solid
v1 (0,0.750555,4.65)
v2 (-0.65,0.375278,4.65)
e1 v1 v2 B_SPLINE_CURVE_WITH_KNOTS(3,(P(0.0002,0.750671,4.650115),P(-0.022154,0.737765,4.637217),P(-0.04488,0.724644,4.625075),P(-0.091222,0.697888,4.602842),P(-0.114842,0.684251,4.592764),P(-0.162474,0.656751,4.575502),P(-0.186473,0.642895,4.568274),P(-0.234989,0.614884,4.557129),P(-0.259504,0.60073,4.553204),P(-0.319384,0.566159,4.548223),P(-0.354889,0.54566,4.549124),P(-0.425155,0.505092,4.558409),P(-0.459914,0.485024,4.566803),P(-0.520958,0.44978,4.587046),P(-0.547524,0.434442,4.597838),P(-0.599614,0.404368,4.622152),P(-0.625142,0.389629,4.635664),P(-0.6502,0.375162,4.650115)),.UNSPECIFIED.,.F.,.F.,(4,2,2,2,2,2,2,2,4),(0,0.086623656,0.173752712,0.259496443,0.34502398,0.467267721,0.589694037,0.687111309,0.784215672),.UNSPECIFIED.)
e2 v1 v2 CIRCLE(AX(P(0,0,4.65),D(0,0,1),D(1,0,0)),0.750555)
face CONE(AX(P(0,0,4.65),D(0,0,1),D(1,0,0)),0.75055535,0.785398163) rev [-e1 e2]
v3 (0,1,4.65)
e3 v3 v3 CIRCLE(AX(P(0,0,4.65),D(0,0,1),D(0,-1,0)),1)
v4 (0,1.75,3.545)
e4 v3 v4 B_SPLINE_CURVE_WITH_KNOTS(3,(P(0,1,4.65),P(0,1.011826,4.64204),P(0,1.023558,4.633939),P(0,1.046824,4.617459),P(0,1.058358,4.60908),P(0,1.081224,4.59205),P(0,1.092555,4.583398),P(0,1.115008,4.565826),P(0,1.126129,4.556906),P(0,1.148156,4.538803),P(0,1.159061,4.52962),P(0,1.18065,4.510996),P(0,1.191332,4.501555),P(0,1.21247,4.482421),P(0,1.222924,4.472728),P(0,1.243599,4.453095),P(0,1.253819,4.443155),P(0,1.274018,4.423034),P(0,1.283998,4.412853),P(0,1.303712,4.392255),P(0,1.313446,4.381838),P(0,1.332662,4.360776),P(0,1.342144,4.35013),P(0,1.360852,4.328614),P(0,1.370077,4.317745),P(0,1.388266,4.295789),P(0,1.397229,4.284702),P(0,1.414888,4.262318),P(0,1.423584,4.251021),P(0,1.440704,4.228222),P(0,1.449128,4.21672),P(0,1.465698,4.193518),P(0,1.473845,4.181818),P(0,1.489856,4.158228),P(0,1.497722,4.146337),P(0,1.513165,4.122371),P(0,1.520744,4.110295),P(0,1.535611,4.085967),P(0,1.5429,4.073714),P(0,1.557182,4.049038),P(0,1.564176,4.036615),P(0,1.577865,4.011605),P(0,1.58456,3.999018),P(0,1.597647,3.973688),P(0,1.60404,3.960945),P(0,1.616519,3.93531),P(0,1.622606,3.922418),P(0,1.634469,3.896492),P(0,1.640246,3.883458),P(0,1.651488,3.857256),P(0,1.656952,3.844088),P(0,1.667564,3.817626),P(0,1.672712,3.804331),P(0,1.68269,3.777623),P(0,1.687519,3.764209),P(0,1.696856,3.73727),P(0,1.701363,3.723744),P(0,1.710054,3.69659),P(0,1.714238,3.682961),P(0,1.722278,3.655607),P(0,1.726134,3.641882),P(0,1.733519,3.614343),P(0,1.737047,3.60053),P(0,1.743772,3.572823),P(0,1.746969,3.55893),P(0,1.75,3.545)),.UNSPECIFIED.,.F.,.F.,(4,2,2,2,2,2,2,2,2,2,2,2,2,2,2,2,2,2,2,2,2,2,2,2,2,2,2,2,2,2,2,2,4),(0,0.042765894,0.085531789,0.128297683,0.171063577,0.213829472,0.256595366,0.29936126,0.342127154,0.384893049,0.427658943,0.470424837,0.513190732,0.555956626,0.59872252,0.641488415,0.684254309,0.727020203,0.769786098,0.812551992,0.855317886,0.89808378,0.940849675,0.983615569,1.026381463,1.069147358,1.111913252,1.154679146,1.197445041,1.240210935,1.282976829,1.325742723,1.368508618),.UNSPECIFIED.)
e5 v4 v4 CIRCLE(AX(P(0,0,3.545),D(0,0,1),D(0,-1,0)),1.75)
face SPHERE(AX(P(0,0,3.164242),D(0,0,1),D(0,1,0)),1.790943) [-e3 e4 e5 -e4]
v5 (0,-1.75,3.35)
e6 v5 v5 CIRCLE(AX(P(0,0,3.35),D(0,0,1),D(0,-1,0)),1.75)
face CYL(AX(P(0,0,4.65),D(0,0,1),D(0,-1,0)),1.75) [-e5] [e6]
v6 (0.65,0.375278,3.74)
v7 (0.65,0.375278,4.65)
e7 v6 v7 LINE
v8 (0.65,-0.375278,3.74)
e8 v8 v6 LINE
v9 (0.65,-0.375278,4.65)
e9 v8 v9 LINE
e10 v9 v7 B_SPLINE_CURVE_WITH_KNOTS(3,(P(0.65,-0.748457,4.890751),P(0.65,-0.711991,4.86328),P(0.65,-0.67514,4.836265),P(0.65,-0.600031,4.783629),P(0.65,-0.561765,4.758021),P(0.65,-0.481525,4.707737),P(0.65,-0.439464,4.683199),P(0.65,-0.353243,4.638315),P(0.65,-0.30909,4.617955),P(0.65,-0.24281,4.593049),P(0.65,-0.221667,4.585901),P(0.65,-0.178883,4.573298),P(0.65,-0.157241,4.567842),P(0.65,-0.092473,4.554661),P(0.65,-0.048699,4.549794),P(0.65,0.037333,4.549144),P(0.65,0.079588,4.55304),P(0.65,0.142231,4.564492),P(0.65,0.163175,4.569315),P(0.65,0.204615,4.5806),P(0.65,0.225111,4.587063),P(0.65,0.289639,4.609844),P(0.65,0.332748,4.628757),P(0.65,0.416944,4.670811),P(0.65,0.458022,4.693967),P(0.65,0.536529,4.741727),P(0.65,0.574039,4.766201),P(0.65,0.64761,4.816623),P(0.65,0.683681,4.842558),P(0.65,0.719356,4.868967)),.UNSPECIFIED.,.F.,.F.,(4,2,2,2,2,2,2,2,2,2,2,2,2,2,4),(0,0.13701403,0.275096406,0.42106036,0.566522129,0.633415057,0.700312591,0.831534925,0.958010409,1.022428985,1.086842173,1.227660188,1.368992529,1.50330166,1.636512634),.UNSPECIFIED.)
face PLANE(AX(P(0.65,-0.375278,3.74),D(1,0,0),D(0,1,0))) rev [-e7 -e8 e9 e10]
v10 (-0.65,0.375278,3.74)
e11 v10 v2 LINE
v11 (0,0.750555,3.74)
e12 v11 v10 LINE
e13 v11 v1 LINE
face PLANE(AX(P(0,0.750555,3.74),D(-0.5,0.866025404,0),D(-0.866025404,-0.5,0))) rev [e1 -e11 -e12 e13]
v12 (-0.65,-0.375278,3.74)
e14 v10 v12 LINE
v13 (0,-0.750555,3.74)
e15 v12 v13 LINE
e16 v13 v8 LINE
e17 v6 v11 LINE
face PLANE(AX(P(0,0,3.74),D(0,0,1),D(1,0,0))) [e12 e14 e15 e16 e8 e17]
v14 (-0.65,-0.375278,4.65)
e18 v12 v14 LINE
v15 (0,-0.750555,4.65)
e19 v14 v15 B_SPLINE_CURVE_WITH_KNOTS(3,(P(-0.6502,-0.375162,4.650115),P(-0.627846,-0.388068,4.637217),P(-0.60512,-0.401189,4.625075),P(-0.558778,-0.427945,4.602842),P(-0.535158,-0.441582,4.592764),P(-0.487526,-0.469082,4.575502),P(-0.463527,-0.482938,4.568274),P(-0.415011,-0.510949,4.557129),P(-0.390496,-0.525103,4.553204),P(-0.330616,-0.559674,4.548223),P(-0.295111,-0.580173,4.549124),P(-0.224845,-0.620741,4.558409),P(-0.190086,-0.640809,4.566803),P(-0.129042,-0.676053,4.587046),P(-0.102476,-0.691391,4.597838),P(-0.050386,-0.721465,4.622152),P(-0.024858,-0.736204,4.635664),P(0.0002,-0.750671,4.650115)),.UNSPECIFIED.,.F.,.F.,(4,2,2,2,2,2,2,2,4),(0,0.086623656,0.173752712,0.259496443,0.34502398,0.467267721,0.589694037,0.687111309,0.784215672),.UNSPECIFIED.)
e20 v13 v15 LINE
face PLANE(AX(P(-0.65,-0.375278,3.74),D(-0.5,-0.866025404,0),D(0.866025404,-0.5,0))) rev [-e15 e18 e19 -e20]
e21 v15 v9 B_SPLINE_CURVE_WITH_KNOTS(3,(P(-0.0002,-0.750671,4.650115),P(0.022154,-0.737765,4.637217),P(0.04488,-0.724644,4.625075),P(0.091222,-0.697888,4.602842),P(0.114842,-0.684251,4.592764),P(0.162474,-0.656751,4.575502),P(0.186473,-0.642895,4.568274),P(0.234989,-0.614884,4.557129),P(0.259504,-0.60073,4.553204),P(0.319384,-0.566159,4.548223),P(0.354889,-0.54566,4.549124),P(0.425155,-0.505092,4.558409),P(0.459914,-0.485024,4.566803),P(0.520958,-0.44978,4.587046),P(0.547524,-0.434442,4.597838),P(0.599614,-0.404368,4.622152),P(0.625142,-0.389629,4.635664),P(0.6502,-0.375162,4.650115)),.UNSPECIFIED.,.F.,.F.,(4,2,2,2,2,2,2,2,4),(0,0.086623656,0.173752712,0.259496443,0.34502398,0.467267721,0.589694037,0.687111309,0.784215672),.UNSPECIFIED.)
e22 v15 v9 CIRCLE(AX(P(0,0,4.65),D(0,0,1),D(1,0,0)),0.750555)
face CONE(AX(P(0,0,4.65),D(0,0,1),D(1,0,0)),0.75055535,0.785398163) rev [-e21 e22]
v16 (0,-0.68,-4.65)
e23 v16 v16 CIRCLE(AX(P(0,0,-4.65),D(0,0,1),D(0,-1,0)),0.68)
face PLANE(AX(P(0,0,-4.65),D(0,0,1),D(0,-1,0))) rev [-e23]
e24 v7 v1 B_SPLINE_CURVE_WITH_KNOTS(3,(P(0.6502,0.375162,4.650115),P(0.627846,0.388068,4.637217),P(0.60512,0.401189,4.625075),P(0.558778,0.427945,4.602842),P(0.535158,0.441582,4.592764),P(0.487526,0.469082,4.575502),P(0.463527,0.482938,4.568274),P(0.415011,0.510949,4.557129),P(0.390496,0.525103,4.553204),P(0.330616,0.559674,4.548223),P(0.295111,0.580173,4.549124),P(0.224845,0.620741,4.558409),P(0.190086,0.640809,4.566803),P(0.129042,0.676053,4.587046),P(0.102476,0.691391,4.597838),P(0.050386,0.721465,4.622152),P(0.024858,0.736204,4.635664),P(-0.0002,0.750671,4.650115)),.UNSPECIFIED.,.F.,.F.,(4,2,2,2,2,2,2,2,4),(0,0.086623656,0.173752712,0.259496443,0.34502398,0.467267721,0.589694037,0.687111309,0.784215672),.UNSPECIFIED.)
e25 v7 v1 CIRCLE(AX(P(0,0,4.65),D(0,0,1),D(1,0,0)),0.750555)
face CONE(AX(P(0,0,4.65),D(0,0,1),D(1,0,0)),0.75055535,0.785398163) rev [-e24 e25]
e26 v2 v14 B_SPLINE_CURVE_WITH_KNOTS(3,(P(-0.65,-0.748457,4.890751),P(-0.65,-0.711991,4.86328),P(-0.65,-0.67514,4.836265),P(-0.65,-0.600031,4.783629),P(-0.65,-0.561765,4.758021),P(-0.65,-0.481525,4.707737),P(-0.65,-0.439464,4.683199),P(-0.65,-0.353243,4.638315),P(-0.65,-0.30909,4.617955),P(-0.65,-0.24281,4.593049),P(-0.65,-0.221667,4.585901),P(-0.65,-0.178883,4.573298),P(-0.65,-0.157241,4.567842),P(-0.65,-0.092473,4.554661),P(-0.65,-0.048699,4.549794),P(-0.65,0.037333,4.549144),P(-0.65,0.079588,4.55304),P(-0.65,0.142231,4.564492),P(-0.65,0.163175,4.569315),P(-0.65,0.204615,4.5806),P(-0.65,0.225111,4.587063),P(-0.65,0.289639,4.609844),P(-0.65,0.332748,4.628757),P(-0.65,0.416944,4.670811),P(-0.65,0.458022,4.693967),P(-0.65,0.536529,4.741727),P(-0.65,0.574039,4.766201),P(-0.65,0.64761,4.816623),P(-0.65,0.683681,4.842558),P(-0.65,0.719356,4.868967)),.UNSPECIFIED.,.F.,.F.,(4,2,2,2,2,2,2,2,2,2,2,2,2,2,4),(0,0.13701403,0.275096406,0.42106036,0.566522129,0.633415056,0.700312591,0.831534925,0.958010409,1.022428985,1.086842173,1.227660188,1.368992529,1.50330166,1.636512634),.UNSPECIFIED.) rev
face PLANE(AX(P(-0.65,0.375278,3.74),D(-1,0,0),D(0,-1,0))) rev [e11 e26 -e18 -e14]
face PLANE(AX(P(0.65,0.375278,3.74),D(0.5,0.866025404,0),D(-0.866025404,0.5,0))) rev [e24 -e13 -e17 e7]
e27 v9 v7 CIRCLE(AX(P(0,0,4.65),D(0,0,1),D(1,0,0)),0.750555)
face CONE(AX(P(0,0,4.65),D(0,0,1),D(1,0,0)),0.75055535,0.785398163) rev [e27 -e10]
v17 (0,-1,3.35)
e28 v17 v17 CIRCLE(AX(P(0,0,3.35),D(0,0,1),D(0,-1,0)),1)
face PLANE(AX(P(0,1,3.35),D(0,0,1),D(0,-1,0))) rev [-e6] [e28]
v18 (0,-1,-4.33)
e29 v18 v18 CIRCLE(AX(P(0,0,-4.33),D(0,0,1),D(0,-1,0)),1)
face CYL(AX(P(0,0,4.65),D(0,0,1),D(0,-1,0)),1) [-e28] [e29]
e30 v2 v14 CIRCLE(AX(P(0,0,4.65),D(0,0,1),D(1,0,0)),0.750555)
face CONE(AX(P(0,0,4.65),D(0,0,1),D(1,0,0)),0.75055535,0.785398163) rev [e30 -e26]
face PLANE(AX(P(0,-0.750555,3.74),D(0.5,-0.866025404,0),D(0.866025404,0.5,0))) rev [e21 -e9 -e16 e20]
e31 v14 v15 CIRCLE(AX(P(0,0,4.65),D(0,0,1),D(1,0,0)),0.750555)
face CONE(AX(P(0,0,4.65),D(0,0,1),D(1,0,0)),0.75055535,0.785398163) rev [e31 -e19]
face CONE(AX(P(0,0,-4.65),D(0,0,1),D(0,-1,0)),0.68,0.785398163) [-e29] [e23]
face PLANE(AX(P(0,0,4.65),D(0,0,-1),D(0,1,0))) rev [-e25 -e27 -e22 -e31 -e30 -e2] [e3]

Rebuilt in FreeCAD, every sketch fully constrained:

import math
import FreeCAD as App
import Part
import Sketcher
Q = App.Units.Quantity


def add_polygon(sketch, points):
    """Adds a closed chain of lines whose ends are joined by coincident constraints."""
    first, n = sketch.GeometryCount, len(points)
    for a, b in zip(points, points[1:] + points[:1]):
        sketch.addGeometry(Part.LineSegment(App.Vector(*a, 0), App.Vector(*b, 0)), False)
    for i in range(n):
        sketch.addConstraint(Sketcher.Constraint("Coincident", first + i, 2, first + (i + 1) % n, 1))

doc = App.newDocument("Part")
body = doc.addObject("PartDesign::Body", "Body")

# Sketch on YZ plane
sketch1 = body.newObject("Sketcher::SketchObject", "Sketch")
sketch1.AttachmentSupport = (doc.getObject("YZ_Plane"), [""])
sketch1.MapMode = "FlatFace"
sketch1.addGeometry([
    Part.LineSegment(App.Vector(0, 4.65, 0), App.Vector(0, -4.65, 0)),  # 0
    Part.LineSegment(App.Vector(0, -4.65, 0), App.Vector(0.68, -4.65, 0)),  # 1
    Part.LineSegment(App.Vector(0.68, -4.65, 0), App.Vector(1, -4.33, 0)),  # 2
    Part.LineSegment(App.Vector(1, -4.33, 0), App.Vector(1, 3.35, 0)),  # 3
    Part.LineSegment(App.Vector(1, 3.35, 0), App.Vector(1.75, 3.35, 0)),  # 4
    Part.LineSegment(App.Vector(1.75, 3.35, 0), App.Vector(1.75, 3.54, 0)),  # 5
    Part.ArcOfCircle(Part.Circle(App.Vector(0, 3.16, 0), App.Vector(0, 0, 1), 1.79), math.radians(12), math.radians(56)),  # 6
    Part.LineSegment(App.Vector(1, 4.65, 0), App.Vector(0, 4.65, 0)),  # 7
], False)
sketch1.addConstraint([
    Sketcher.Constraint("Coincident", 0, 2, 1, 1),
    Sketcher.Constraint("Coincident", 1, 2, 2, 1),
    Sketcher.Constraint("Coincident", 2, 2, 3, 1),
    Sketcher.Constraint("Coincident", 3, 2, 4, 1),
    Sketcher.Constraint("Coincident", 4, 2, 5, 1),
    Sketcher.Constraint("Coincident", 5, 2, 6, 1),
    Sketcher.Constraint("Coincident", 6, 2, 7, 1),
    Sketcher.Constraint("Coincident", 7, 2, 0, 1),
    Sketcher.Constraint("Vertical", 0),
    Sketcher.Constraint("Horizontal", 1),
    Sketcher.Constraint("Vertical", 3),
    Sketcher.Constraint("Horizontal", 4),
    Sketcher.Constraint("Vertical", 5),
    Sketcher.Constraint("Horizontal", 7),
    Sketcher.Constraint("Symmetric", 0, 2, 7, 2, -1, 1),
    Sketcher.Constraint("PointOnObject", 6, 3, -2),
    Sketcher.Constraint("Vertical", 3, 2, 6, 2),
    Sketcher.Constraint("DistanceX", 7, 2, 7, 1, 1.0),
    Sketcher.Constraint("Angle", 2, Q("45 deg")),
    Sketcher.Constraint("DistanceY", 0, 2, 0, 1, 9.3),
    Sketcher.Constraint("DistanceY", 1, 2, 3, 2, 8.0),
    Sketcher.Constraint("DistanceX", 1, 1, 1, 2, 0.68),
    Sketcher.Constraint("DistanceX", 4, 1, 4, 2, 0.75),
    Sketcher.Constraint("DistanceY", 5, 1, 5, 2, 0.195),
])
revolution = body.newObject("PartDesign::Revolution", "Revolution")
revolution.Profile = sketch1
revolution.ReferenceAxis = (sketch1, ["V_Axis"])
revolution.Angle = 360

# Sketch on XY plane
sketch2 = body.newObject("Sketcher::SketchObject", "Sketch001")
sketch2.AttachmentSupport = (doc.getObject("XY_Plane"), [""])
sketch2.MapMode = "FlatFace"
sketch2.AttachmentOffset = App.Placement(App.Vector(0, 0, 4.65), App.Rotation())
add_polygon(sketch2, [(0, 0.8), (-0.7, 0.4), (-0.7, -0.4), (0, -0.8), (0.7, -0.4), (0.7, 0.4)])  # lines 0-5
sketch2.addConstraint([
    Sketcher.Constraint("Vertical", 1),
    Sketcher.Constraint("Vertical", 4),
    Sketcher.Constraint("Symmetric", 0, 2, 3, 2, -1, 1),
    Sketcher.Constraint("Symmetric", 2, 2, 5, 2, -1, 1),
    Sketcher.Constraint("PointOnObject", 2, 2, -2),
    Sketcher.Constraint("Parallel", 2, 5),
    Sketcher.Constraint("Horizontal", 1, 2, 3, 2),
    Sketcher.Constraint("Angle", 0, Q("-150 deg")),
    Sketcher.Constraint("DistanceX", 1, 2, 3, 2, 1.3),
    Sketcher.Constraint("DistanceY", 1, 2, 1, 1, 0.750555),
])
pocket1 = body.newObject("PartDesign::Pocket", "Pocket")
pocket1.Profile = sketch2
pocket1.Length = 0.91

# Sketch on YZ plane
sketch3 = body.newObject("Sketcher::SketchObject", "Sketch002")
sketch3.AttachmentSupport = (doc.getObject("YZ_Plane"), [""])
sketch3.MapMode = "FlatFace"
add_polygon(sketch3, [(0, 4.7), (-0.8, 4.7), (0, 3.9)])  # lines 0-2
sketch3.addConstraint([
    Sketcher.Constraint("Horizontal", 0),
    Sketcher.Constraint("Vertical", 2),
    Sketcher.Constraint("PointOnObject", 1, 2, -2),
    Sketcher.Constraint("Equal", 0, 2),
    Sketcher.Constraint("DistanceY", -1, 1, 0, 2, 4.65),
    Sketcher.Constraint("DistanceX", 0, 2, 0, 1, 0.750555),
])
groove = body.newObject("PartDesign::Groove", "Groove")
groove.Profile = sketch3
groove.ReferenceAxis = (sketch3, ["V_Axis"])
groove.Angle = 360

doc.recompute()
